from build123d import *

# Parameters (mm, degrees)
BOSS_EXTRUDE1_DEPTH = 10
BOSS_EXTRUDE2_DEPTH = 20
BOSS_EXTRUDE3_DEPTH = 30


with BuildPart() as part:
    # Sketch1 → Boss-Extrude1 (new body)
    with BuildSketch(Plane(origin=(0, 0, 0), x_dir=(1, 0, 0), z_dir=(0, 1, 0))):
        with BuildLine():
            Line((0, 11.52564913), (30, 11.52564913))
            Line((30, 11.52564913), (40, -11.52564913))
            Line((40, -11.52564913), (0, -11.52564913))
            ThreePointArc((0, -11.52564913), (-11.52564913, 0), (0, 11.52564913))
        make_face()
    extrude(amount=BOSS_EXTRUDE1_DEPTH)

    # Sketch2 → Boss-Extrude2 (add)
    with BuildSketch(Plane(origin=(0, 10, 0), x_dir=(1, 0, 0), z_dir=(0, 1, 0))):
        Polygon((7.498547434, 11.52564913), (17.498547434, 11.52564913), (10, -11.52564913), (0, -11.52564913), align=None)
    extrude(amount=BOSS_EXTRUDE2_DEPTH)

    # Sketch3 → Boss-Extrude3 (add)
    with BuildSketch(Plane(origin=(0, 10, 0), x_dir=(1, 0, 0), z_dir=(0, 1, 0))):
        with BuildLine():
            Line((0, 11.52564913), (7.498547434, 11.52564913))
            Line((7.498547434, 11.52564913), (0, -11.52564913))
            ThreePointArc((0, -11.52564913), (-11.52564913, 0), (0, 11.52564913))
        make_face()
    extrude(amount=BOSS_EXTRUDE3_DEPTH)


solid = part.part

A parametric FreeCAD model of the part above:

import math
import FreeCAD as App
import Part
import Sketcher

doc = App.newDocument("Part")
params = doc.addObject("Spreadsheet::Sheet", "Params")
for row, (alias, value) in enumerate([
    ("sketch1_width", "30 mm"),
    ("sketch1_width2", "40 mm"),
    ("pad1_length", "10 mm"),
    ("sketch2_width", "10 mm"),
    ("pad2_length", "20 mm"),
    ("pad3_length", "30 mm"),
], start=1):
    params.set(f"A{row}", alias)
    params.set(f"B{row}", "=" + value)
    params.setAlias(f"B{row}", alias)

body = doc.addObject("PartDesign::Body", "Body")

# Sketch on XZ plane
sketch1 = body.newObject("Sketcher::SketchObject", "Sketch")
sketch1.AttachmentSupport = (doc.getObject("XZ_Plane"), [""])
sketch1.MapMode = "FlatFace"
sketch1.addGeometry([
    Part.LineSegment(App.Vector(30, -12, 0), App.Vector(0, -12, 0)),
    Part.ArcOfCircle(Part.Circle(App.Vector(0, 0, 0), App.Vector(0, 0, 1), 12), math.radians(90), math.radians(270)),
    Part.LineSegment(App.Vector(0, 12, 0), App.Vector(40, 12, 0)),
    Part.LineSegment(App.Vector(40, 12, 0), App.Vector(30, -12, 0)),
], False)
sketch1.addConstraint([
    Sketcher.Constraint("Tangent", 0, 2, 1, 2),
    Sketcher.Constraint("Tangent", 1, 1, 2, 1),
    Sketcher.Constraint("Coincident", 2, 2, 3, 1),
    Sketcher.Constraint("Coincident", 3, 2, 0, 1),
    Sketcher.Constraint("Horizontal", 0),
    Sketcher.Constraint("Horizontal", 2),
    Sketcher.Constraint("Coincident", 1, 3, -1, 1),
    Sketcher.Constraint("DistanceX", 0, 2, 0, 1, 30.0),
    Sketcher.Constraint("DistanceX", 2, 1, 2, 2, 40.0),
    Sketcher.Constraint("Radius", 1, 11.525649),
])
sketch1.setExpression("Constraints[7]", "Params.sketch1_width")
sketch1.setExpression("Constraints[8]", "Params.sketch1_width2")
pad1 = body.newObject("PartDesign::Pad", "Pad")
pad1.Profile = sketch1
pad1.setExpression("Length", "Params.pad1_length")
pad1.Reversed = True

# Sketch on XZ plane
sketch2 = body.newObject("Sketcher::SketchObject", "Sketch001")
sketch2.AttachmentSupport = (doc.getObject("XZ_Plane"), [""])
sketch2.MapMode = "FlatFace"
sketch2.AttachmentOffset = App.Placement(App.Vector(0, 0, -10), App.Rotation())
sketch2.addGeometry([
    Part.LineSegment(App.Vector(17, -12, 0), App.Vector(7, -12, 0)),
    Part.LineSegment(App.Vector(7, -12, 0), App.Vector(0, 12, 0)),
    Part.LineSegment(App.Vector(0, 12, 0), App.Vector(10, 12, 0)),
    Part.LineSegment(App.Vector(10, 12, 0), App.Vector(17, -12, 0)),
], False)
sketch2.addConstraint([
    Sketcher.Constraint("Coincident", 0, 2, 1, 1),
    Sketcher.Constraint("Coincident", 1, 2, 2, 1),
    Sketcher.Constraint("Coincident", 2, 2, 3, 1),
    Sketcher.Constraint("Coincident", 3, 2, 0, 1),
    Sketcher.Constraint("Horizontal", 0),
    Sketcher.Constraint("Horizontal", 2),
    Sketcher.Constraint("PointOnObject", 1, 2, -2),
    Sketcher.Constraint("Parallel", 1, 3),
    Sketcher.Constraint("DistanceX", 0, 2, 0, 1, 10.0),
    Sketcher.Constraint("DistanceY", 0, 2, 1, 2, 23.051298),
    Sketcher.Constraint("DistanceY", 0, 2, -1, 1, 11.525649),
    Sketcher.Constraint("Distance", 1, 24.240267),
])
sketch2.setExpression("Constraints[8]", "Params.sketch2_width")
pad2 = body.newObject("PartDesign::Pad", "Pad001")
pad2.Profile = sketch2
pad2.setExpression("Length", "Params.pad2_length")
pad2.Reversed = True

# Sketch on XZ plane
sketch3 = body.newObject("Sketcher::SketchObject", "Sketch002")
sketch3.AttachmentSupport = (doc.getObject("XZ_Plane"), [""])
sketch3.MapMode = "FlatFace"
sketch3.AttachmentOffset = App.Placement(App.Vector(0, 0, -10), App.Rotation())
sketch3.addGeometry([
    Part.LineSegment(App.Vector(7, -12, 0), App.Vector(0, -12, 0)),
    Part.ArcOfCircle(Part.Circle(App.Vector(0, 0, 0), App.Vector(0, 0, 1), 12), math.radians(90), math.radians(270)),
    Part.LineSegment(App.Vector(0, 12, 0), App.Vector(7, -12, 0)),
], False)
sketch3.addConstraint([
    Sketcher.Constraint("Tangent", 0, 2, 1, 2),
    Sketcher.Constraint("Coincident", 1, 1, 2, 1),
    Sketcher.Constraint("Coincident", 2, 2, 0, 1),
    Sketcher.Constraint("Horizontal", 0),
    Sketcher.Constraint("Coincident", 1, 3, -1, 1),
    Sketcher.Constraint("PointOnObject", 1, 1, -2),
    Sketcher.Constraint("Radius", 1, 11.525649),
    Sketcher.Constraint("DistanceX", 0, 2, 0, 1, 7.498547),
])
pad3 = body.newObject("PartDesign::Pad", "Pad002")
pad3.Profile = sketch3
pad3.setExpression("Length", "Params.pad3_length")
pad3.Reversed = True

doc.recompute()
